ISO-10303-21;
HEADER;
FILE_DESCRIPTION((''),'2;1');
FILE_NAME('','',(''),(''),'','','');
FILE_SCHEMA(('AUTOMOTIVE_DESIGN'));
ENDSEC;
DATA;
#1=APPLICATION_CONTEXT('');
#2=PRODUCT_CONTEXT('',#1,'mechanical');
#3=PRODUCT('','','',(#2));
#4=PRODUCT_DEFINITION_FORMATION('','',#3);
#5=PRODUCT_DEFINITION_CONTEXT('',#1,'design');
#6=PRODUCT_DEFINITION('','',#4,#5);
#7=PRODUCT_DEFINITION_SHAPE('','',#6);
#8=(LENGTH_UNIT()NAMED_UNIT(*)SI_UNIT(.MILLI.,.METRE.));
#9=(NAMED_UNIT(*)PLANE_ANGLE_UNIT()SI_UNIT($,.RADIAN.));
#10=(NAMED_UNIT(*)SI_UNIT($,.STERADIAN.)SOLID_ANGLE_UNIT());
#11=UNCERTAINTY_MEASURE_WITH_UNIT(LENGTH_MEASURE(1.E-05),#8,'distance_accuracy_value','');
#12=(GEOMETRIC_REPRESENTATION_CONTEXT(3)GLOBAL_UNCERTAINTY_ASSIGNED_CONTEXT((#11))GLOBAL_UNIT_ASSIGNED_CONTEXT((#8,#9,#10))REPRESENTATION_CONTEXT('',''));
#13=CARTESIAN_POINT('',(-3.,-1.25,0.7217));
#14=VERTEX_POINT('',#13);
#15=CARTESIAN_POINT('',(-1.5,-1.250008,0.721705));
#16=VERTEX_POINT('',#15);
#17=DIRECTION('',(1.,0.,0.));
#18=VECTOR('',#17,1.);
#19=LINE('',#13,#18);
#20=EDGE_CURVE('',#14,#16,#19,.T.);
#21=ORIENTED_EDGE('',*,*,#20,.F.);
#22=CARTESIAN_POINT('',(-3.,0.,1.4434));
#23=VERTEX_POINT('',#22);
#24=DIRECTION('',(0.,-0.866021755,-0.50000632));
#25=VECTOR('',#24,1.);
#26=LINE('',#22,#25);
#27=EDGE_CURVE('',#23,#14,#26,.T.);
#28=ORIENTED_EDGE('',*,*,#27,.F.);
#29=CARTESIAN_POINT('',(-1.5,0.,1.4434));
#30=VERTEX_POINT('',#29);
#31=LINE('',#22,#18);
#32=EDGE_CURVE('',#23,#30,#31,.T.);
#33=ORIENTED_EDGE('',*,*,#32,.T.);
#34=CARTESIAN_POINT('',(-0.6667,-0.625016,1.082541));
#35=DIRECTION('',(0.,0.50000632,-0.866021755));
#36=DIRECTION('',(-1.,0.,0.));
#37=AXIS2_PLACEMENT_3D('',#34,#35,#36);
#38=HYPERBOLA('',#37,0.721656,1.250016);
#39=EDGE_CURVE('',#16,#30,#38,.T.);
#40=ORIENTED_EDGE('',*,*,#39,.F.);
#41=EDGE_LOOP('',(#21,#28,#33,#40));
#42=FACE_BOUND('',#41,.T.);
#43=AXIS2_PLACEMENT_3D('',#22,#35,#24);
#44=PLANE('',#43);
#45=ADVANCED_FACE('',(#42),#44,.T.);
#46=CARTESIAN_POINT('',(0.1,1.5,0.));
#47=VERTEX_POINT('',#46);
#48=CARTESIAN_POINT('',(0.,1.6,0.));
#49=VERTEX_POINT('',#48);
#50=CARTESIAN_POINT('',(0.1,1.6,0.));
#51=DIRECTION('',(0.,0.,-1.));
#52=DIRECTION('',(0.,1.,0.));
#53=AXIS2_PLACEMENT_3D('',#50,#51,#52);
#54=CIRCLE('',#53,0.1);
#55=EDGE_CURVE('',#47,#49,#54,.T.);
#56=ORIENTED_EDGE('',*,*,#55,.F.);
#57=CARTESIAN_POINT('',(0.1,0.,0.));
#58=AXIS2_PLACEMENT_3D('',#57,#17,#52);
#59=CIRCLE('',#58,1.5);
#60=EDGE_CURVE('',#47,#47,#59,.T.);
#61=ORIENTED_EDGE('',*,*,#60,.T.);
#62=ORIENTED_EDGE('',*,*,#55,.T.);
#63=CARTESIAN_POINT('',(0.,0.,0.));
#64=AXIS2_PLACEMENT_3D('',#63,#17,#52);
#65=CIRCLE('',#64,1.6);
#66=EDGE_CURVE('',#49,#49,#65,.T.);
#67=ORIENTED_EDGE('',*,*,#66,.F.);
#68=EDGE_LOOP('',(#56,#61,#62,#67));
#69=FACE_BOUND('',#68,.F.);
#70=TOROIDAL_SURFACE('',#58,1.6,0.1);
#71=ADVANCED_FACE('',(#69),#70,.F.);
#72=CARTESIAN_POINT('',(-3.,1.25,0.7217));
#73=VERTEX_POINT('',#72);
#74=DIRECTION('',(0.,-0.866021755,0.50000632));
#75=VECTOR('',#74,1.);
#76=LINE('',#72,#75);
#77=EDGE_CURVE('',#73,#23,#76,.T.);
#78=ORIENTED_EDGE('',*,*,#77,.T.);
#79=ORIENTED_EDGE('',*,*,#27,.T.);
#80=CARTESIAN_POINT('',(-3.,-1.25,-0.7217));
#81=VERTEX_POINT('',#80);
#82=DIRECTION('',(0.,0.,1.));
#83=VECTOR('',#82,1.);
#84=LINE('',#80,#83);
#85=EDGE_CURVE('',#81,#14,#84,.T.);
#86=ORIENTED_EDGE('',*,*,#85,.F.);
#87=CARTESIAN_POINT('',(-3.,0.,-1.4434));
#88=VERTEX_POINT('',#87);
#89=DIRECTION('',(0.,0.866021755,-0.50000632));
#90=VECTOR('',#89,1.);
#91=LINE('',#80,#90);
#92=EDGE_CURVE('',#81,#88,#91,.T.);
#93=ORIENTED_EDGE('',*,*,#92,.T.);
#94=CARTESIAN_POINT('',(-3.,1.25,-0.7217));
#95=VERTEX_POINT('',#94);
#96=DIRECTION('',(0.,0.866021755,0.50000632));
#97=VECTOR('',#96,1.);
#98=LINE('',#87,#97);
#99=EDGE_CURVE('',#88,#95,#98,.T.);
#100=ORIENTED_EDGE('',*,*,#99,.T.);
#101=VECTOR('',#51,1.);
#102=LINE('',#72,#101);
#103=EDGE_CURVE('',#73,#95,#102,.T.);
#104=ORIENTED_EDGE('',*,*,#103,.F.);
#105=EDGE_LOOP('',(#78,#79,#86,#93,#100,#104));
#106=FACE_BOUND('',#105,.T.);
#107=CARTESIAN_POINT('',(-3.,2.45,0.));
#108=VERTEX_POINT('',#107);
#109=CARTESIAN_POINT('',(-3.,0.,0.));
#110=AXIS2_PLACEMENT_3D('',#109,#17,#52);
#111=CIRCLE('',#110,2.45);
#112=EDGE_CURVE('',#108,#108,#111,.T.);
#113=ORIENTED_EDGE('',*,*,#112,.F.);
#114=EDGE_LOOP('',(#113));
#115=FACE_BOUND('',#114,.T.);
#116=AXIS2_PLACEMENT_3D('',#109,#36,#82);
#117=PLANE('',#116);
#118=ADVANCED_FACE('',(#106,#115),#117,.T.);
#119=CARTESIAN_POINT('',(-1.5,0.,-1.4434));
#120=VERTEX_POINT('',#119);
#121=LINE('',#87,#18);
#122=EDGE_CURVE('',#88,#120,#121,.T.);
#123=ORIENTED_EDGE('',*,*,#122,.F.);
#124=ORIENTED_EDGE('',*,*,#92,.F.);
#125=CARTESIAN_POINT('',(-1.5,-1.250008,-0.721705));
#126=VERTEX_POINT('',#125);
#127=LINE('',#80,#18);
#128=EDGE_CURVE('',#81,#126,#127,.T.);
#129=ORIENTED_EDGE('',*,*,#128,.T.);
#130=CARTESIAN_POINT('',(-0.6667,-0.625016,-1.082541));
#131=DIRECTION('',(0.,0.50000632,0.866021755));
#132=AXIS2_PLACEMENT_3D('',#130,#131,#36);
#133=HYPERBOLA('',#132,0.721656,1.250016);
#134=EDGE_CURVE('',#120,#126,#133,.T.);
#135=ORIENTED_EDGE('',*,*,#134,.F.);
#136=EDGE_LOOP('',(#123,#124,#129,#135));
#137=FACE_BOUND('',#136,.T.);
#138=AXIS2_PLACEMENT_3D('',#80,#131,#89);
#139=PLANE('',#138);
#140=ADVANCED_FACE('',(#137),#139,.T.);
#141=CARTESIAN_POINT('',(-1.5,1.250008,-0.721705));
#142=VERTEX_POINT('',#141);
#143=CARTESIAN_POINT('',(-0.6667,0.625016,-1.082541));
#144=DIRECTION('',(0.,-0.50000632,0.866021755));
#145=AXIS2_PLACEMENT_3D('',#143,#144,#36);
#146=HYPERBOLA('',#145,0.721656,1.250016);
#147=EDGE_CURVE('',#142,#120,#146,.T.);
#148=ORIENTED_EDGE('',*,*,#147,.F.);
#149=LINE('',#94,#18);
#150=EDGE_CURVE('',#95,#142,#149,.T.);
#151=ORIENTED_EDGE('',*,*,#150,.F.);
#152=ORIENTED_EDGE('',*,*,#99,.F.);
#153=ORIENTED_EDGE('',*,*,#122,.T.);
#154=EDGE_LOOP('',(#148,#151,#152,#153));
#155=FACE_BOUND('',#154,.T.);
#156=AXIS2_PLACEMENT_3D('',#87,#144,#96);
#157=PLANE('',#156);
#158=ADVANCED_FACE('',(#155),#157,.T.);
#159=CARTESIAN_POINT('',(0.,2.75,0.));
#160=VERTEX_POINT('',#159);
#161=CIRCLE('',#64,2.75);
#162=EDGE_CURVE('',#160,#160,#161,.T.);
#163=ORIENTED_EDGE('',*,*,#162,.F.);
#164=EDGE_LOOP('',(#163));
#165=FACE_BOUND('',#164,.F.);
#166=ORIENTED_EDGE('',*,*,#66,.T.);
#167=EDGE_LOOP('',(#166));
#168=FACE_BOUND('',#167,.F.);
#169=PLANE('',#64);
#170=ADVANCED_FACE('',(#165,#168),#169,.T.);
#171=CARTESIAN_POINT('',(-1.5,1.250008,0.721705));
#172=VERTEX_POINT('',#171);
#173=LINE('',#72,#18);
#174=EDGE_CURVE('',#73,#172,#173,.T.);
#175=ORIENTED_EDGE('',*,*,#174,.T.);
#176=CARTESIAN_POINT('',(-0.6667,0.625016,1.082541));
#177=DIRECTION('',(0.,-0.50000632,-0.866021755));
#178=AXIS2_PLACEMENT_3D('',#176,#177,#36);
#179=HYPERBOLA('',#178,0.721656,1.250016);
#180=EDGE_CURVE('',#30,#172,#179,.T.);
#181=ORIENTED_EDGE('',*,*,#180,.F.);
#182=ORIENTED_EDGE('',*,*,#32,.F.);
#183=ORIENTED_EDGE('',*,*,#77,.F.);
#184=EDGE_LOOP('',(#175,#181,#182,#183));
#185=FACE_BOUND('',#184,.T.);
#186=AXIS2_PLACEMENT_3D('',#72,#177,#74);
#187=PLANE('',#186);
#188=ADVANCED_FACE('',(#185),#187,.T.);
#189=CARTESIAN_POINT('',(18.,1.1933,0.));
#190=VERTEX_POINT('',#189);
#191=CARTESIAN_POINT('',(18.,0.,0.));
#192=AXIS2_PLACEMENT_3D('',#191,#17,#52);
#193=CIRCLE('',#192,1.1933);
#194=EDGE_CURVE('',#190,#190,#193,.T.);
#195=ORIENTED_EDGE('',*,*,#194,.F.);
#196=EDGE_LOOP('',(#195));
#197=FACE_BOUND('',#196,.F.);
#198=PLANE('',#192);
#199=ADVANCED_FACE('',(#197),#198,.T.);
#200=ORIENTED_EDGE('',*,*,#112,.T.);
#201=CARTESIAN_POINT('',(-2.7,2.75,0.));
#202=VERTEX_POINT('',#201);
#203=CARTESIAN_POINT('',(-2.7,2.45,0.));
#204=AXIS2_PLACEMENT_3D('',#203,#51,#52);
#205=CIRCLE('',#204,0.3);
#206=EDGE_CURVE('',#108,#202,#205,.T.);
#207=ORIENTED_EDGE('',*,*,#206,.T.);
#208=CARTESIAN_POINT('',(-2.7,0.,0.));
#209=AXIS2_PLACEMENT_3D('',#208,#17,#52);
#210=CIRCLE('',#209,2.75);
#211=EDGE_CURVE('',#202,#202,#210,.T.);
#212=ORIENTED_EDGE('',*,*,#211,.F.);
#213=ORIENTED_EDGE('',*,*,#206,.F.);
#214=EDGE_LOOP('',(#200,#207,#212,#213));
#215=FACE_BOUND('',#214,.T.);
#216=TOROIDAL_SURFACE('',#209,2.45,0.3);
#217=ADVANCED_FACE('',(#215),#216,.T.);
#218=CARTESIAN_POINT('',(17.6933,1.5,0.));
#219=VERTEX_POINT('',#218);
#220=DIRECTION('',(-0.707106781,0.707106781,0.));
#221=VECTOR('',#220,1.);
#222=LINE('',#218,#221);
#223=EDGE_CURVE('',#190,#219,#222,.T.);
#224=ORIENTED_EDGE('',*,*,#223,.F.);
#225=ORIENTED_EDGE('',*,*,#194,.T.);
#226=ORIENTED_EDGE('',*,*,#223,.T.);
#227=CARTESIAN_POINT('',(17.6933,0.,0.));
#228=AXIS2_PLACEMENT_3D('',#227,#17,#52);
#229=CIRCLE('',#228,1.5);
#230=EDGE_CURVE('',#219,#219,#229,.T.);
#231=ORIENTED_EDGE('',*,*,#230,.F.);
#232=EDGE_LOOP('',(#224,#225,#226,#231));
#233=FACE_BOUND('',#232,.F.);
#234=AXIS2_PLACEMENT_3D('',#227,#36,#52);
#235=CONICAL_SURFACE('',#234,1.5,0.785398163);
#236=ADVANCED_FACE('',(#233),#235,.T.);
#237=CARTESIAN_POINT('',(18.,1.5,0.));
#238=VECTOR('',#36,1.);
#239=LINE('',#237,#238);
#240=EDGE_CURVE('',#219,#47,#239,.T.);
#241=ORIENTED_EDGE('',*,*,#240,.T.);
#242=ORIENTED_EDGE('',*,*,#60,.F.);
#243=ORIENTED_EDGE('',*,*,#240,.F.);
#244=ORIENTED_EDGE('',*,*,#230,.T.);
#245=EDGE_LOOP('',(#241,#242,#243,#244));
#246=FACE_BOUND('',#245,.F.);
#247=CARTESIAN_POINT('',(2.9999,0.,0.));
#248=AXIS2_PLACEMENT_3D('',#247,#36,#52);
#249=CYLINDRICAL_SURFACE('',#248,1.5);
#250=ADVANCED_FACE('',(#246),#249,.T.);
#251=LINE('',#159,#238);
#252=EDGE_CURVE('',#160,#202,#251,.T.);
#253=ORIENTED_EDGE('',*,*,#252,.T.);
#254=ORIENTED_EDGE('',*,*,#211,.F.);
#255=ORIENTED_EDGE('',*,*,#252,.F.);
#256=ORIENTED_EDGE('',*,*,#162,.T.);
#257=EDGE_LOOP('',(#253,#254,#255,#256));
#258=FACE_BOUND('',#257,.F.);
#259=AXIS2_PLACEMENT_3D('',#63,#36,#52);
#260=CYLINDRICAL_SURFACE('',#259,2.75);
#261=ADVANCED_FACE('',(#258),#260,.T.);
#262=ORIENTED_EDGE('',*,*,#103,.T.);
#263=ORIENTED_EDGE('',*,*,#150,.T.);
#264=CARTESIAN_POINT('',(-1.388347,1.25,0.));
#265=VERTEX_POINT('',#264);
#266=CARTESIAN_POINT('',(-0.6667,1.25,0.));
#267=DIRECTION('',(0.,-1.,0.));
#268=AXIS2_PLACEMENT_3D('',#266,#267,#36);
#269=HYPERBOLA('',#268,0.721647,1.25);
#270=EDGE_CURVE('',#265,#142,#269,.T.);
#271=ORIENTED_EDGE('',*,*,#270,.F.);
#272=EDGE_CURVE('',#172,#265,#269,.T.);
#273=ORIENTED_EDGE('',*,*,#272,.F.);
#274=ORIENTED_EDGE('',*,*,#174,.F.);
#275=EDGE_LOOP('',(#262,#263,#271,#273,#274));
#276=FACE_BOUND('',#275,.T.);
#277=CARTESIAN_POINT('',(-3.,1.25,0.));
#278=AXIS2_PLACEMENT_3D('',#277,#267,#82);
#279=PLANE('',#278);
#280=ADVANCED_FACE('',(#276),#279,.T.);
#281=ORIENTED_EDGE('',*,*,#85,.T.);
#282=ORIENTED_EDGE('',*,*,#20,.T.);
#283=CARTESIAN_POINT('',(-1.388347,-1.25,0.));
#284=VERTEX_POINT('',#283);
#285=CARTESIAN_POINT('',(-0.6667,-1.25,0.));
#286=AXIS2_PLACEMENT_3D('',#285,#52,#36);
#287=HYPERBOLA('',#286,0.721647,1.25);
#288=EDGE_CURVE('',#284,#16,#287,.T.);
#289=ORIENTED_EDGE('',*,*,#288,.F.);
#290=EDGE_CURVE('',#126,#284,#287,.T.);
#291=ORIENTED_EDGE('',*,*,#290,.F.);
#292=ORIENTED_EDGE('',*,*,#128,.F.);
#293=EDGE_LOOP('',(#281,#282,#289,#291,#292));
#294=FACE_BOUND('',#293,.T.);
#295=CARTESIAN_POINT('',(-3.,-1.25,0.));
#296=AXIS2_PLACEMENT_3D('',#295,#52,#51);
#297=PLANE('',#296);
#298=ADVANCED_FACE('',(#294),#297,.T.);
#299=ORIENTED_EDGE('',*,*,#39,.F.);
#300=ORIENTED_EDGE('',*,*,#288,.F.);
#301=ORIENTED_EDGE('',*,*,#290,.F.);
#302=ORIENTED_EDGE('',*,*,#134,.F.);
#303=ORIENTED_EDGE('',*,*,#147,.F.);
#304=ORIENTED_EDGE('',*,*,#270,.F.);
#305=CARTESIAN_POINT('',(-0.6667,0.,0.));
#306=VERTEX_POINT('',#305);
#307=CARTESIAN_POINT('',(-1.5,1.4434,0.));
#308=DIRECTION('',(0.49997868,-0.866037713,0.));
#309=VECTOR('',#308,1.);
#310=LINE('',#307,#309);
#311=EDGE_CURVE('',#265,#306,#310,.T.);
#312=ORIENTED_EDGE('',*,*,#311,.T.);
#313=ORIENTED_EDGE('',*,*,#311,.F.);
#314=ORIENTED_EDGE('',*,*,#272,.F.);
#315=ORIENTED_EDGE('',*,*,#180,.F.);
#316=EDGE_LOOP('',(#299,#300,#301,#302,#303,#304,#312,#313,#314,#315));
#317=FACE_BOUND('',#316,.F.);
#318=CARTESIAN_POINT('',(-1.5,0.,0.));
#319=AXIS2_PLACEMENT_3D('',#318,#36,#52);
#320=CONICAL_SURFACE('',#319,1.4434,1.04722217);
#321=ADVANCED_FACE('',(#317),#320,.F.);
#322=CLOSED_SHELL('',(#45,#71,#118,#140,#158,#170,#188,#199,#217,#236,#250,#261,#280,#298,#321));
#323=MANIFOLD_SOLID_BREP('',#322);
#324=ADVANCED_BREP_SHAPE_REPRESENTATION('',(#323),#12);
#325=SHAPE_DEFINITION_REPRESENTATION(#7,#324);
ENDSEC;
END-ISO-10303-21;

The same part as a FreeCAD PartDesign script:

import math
import FreeCAD as App
import Part
import Sketcher

V = App.Vector
Q = App.Units.Quantity


def edges_at(feature, points):
    """Names of the edges that pass closest to the given points."""
    edges = feature.Shape.Edges
    near = lambda p: min(range(len(edges)), key=lambda i: edges[i].distToShape(Part.Vertex(*p))[0])
    return sorted({f"Edge{near(p) + 1}" for p in points})

doc = App.newDocument("Part")
body = doc.addObject("PartDesign::Body", "Body")

# Sketch on XY plane
sketch1 = doc.addObject("Sketcher::SketchObject", "Sketch")
body.addObject(sketch1)
sketch1.AttachmentSupport = (doc.XY_Plane, [""])
sketch1.MapMode = "FlatFace"
sketch1.addGeometry([
    Part.LineSegment(V(-1.5, 1.4434, 0), V(-0.6667, 0, 0)),  # 0
    Part.LineSegment(V(-0.6667, 0, 0), V(18, 0, 0)),  # 1
    Part.LineSegment(V(18, 0, 0), V(18, 1.5, 0)),  # 2
    Part.LineSegment(V(18, 1.5, 0), V(0, 1.5, 0)),  # 3
    Part.LineSegment(V(0, 1.5, 0), V(0, 2.75, 0)),  # 4
    Part.LineSegment(V(0, 2.75, 0), V(-3, 2.75, 0)),  # 5
    Part.LineSegment(V(-3, 2.75, 0), V(-3, 1.4434, 0)),  # 6
    Part.LineSegment(V(-3, 1.4434, 0), V(-1.5, 1.4434, 0)),  # 7
], False)
sketch1.addConstraint([
    Sketcher.Constraint("Coincident", 0, 2, 1, 1),
    Sketcher.Constraint("Coincident", 1, 2, 2, 1),
    Sketcher.Constraint("Coincident", 2, 2, 3, 1),
    Sketcher.Constraint("Coincident", 3, 2, 4, 1),
    Sketcher.Constraint("Coincident", 4, 2, 5, 1),
    Sketcher.Constraint("Coincident", 5, 2, 6, 1),
    Sketcher.Constraint("Coincident", 6, 2, 7, 1),
    Sketcher.Constraint("Coincident", 7, 2, 0, 1),
    Sketcher.Constraint("Horizontal", 1),
    Sketcher.Constraint("Vertical", 2),
    Sketcher.Constraint("Horizontal", 3),
    Sketcher.Constraint("Vertical", 4),
    Sketcher.Constraint("Horizontal", 5),
    Sketcher.Constraint("Vertical", 6),
    Sketcher.Constraint("Horizontal", 7),
    Sketcher.Constraint("PointOnObject", 0, 2, -1),
    Sketcher.Constraint("PointOnObject", 3, 2, -2),
    Sketcher.Constraint("Equal", 7, 2),
    Sketcher.Constraint("DistanceX", 3, 2, 3, 1, 18.0),
    Sketcher.Constraint("DistanceX", 5, 2, 5, 1, 3.0),
    Sketcher.Constraint("DistanceX", 7, 1, 7, 2, 1.5),
    Sketcher.Constraint("DistanceY", 4, 1, 4, 2, 1.25),
    Sketcher.Constraint("DistanceX", 1, 1, 1, 2, 18.6667),
    Sketcher.Constraint("DistanceY", 6, 2, 6, 1, 1.3066),
])
revolution = doc.addObject("PartDesign::Revolution", "Revolution")
body.addObject(revolution)
revolution.Profile = sketch1
revolution.ReferenceAxis = (sketch1, ["H_Axis"])
revolution.Angle = 360

# Sketch on YZ plane
sketch2 = doc.addObject("Sketcher::SketchObject", "Sketch001")
body.addObject(sketch2)
sketch2.AttachmentSupport = (doc.YZ_Plane, [""])
sketch2.MapMode = "FlatFace"
sketch2.AttachmentOffset = App.Placement(V(0, 0, -3), App.Rotation())
sketch2.addGeometry([
    Part.LineSegment(V(1.25, 0.7217, 0), V(0, 1.4434, 0)),  # 0
    Part.ArcOfCircle(Part.Circle(V(0, 0, 0), V(0, 0, 1), 1.4434), math.radians(30.000418), math.radians(90)),  # 1
    Part.ArcOfCircle(Part.Circle(V(0, 0, 0), V(0, 0, 1), 1.4434), math.radians(90), math.radians(149.999582)),  # 2
    Part.LineSegment(V(0, 1.4434, 0), V(-1.25, 0.7217, 0)),  # 3
    Part.ArcOfCircle(Part.Circle(V(0, 0, 0), V(0, 0, 1), 1.4434), math.radians(-30.000418), math.radians(30.000418)),  # 4
    Part.LineSegment(V(1.25, 0.7217, 0), V(1.25, -0.7217, 0)),  # 5
    Part.LineSegment(V(-1.25, 0.7217, 0), V(-1.25, -0.7217, 0)),  # 6
    Part.ArcOfCircle(Part.Circle(V(0, 0, 0), V(0, 0, 1), 1.4434), math.radians(149.999582), math.radians(210.000418)),  # 7
    Part.LineSegment(V(-1.25, -0.7217, 0), V(0, -1.4434, 0)),  # 8
    Part.ArcOfCircle(Part.Circle(V(0, 0, 0), V(0, 0, 1), 1.4434), math.radians(-149.999582), math.radians(-90)),  # 9
    Part.ArcOfCircle(Part.Circle(V(0, 0, 0), V(0, 0, 1), 1.4434), math.radians(-90), math.radians(-30.000418)),  # 10
    Part.LineSegment(V(0, -1.4434, 0), V(1.25, -0.7217, 0)),  # 11
], False)
sketch2.addConstraint([
    Sketcher.Constraint("Coincident", 0, 1, 1, 1),
    Sketcher.Constraint("Coincident", 1, 2, 0, 2),
    Sketcher.Constraint("Coincident", 2, 1, 3, 1),
    Sketcher.Constraint("Coincident", 3, 2, 2, 2),
    Sketcher.Constraint("Coincident", 4, 1, 5, 2),
    Sketcher.Constraint("Coincident", 5, 1, 4, 2),
    Sketcher.Constraint("Coincident", 6, 1, 7, 1),
    Sketcher.Constraint("Coincident", 7, 2, 6, 2),
    Sketcher.Constraint("Coincident", 8, 1, 9, 1),
    Sketcher.Constraint("Coincident", 9, 2, 8, 2),
    Sketcher.Constraint("Coincident", 10, 1, 11, 1),
    Sketcher.Constraint("Coincident", 11, 2, 10, 2),
    Sketcher.Constraint("Vertical", 5),
    Sketcher.Constraint("Vertical", 6),
    Sketcher.Constraint("Coincident", 1, 3, -1, 1),
    Sketcher.Constraint("Coincident", 2, 3, -1, 1),
    Sketcher.Constraint("Coincident", 4, 3, -1, 1),
    Sketcher.Constraint("Coincident", 7, 3, -1, 1),
    Sketcher.Constraint("Coincident", 9, 3, -1, 1),
    Sketcher.Constraint("Coincident", 10, 3, -1, 1),
    Sketcher.Constraint("Coincident", 2, 1, 1, 2),
    Sketcher.Constraint("Coincident", 5, 1, 0, 1),
    Sketcher.Constraint("Coincident", 6, 1, 3, 2),
    Sketcher.Constraint("Coincident", 8, 1, 7, 2),
    Sketcher.Constraint("Coincident", 10, 1, 9, 2),
    Sketcher.Constraint("PointOnObject", 1, 2, -2),
    Sketcher.Constraint("PointOnObject", 9, 2, -2),
    Sketcher.Constraint("Parallel", 0, 8),
    Sketcher.Constraint("Parallel", 3, 11),
    Sketcher.Constraint("Angle", 0, Q("149.9996 deg")),
    Sketcher.Constraint("Radius", 1, 1.4434),
])
pad1 = doc.addObject("PartDesign::Pad", "Pad")
body.addObject(pad1)
pad1.Profile = sketch2
pad1.Type = "UpToFirst"
doc.recompute()

fillet = doc.addObject("PartDesign::Fillet", "Fillet")
body.addObject(fillet)
fillet.Base = (pad1, edges_at(pad1, [(-3, -2.75, 0)]))
fillet.Radius = 0.3
doc.recompute()

chamfer = doc.addObject("PartDesign::Chamfer", "Chamfer")
body.addObject(chamfer)
chamfer.Base = (fillet, edges_at(fillet, [(18, -1.5, 0)]))
chamfer.ChamferType = "Two distances"
chamfer.Size = 0.3067
chamfer.Size2 = 0.3067
doc.recompute()

fillet2 = doc.addObject("PartDesign::Fillet", "Fillet001")
body.addObject(fillet2)
fillet2.Base = (chamfer, edges_at(chamfer, [(0, -1.5, 0)]))
fillet2.Radius = 0.1

doc.recompute()
